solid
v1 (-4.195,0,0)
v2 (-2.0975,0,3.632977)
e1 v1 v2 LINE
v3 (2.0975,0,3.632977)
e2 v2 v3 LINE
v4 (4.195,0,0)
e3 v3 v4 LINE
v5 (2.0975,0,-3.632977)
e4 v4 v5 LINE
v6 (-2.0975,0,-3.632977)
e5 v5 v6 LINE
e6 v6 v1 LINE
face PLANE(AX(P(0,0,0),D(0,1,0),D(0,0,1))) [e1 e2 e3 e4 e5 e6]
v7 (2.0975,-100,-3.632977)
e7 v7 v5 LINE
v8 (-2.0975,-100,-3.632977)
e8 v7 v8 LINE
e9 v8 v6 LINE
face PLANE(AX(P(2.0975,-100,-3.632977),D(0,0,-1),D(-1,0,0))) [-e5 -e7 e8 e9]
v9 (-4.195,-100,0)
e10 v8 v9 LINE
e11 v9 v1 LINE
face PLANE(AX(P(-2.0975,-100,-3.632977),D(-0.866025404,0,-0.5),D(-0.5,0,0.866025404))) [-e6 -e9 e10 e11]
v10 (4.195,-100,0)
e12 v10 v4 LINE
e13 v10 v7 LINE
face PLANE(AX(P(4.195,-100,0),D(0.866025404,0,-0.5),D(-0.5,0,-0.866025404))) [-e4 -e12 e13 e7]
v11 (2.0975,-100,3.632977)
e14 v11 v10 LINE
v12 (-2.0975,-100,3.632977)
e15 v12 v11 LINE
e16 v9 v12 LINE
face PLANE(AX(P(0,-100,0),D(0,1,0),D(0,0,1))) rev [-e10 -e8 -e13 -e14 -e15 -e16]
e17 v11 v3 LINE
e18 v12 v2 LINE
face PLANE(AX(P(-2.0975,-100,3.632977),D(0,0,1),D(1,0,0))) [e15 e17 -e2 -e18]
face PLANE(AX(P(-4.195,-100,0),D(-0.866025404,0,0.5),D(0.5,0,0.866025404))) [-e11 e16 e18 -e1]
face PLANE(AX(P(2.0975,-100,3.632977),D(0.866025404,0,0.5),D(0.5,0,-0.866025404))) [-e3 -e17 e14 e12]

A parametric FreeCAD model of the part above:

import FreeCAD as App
import Part
import Sketcher
Q = App.Units.Quantity


def add_polygon(sketch, points):
    """Adds a closed chain of lines whose ends are joined by coincident constraints."""
    first, n = sketch.GeometryCount, len(points)
    for a, b in zip(points, points[1:] + points[:1]):
        sketch.addGeometry(Part.LineSegment(App.Vector(*a, 0), App.Vector(*b, 0)), False)
    for i in range(n):
        sketch.addConstraint(Sketcher.Constraint("Coincident", first + i, 2, first + (i + 1) % n, 1))

doc = App.newDocument("Part")
body = doc.addObject("PartDesign::Body", "Body")

sketch1 = doc.addObject("Sketcher::SketchObject", "Sketch")
body.addObject(sketch1)
sketch1.AttachmentSupport = (doc.XZ_Plane, [""])
sketch1.MapMode = "FlatFace"
add_polygon(sketch1, [(2.1, -3.6), (-2.1, -3.6), (-4.2, 0), (-2.1, 3.6), (2.1, 3.6), (4.2, 0)])
sketch1.addConstraint(Sketcher.Constraint("Horizontal", 0))
sketch1.addConstraint(Sketcher.Constraint("Horizontal", 3))
sketch1.addConstraint(Sketcher.Constraint("Symmetric", 0, 2, 3, 2, -1, 1))
sketch1.addConstraint(Sketcher.Constraint("Symmetric", 1, 2, 4, 2, -1, 1))
sketch1.addConstraint(Sketcher.Constraint("PointOnObject", 1, 2, -1))
sketch1.addConstraint(Sketcher.Constraint("Parallel", 2, 5))
sketch1.addConstraint(Sketcher.Constraint("Vertical", 0, 2, 2, 2))
sketch1.addConstraint(Sketcher.Constraint("Angle", 1, Q("120 deg")))
sketch1.addConstraint(Sketcher.Constraint("DistanceX", 0, 2, 0, 1, Q("4.195 mm")))
sketch1.addConstraint(Sketcher.Constraint("DistanceX", 1, 2, 4, 2, Q("8.39 mm")))
pad1 = doc.addObject("PartDesign::Pad", "Pad")
body.addObject(pad1)
pad1.Profile = sketch1
pad1.Length = 100

doc.recompute()
